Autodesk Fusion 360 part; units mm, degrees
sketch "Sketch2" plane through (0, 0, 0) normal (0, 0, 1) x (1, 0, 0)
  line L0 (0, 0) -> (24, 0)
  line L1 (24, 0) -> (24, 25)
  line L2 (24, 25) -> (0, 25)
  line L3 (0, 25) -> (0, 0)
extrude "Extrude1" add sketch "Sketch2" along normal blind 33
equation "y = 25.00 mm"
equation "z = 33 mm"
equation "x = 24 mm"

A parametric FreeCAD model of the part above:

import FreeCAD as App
import Part
import Sketcher

doc = App.newDocument("Part")
body = doc.addObject("PartDesign::Body", "Body")

# Sketch on XY plane
sketch1 = body.newObject("Sketcher::SketchObject", "Sketch")
sketch1.AttachmentSupport = (doc.getObject("XY_Plane"), [""])
sketch1.MapMode = "FlatFace"
sketch1.addGeometry(Part.LineSegment(App.Vector(0, 25, 0), App.Vector(0, 0, 0)), False)
sketch1.addGeometry(Part.LineSegment(App.Vector(0, 0, 0), App.Vector(24, 0, 0)), False)
sketch1.addGeometry(Part.LineSegment(App.Vector(24, 0, 0), App.Vector(24, 25, 0)), False)
sketch1.addGeometry(Part.LineSegment(App.Vector(24, 25, 0), App.Vector(0, 25, 0)), False)
sketch1.addConstraint(Sketcher.Constraint("Coincident", 0, 2, 1, 1))
sketch1.addConstraint(Sketcher.Constraint("Coincident", 1, 2, 2, 1))
sketch1.addConstraint(Sketcher.Constraint("Coincident", 2, 2, 3, 1))
sketch1.addConstraint(Sketcher.Constraint("Coincident", 3, 2, 0, 1))
sketch1.addConstraint(Sketcher.Constraint("Vertical", 0))
sketch1.addConstraint(Sketcher.Constraint("Horizontal", 1))
sketch1.addConstraint(Sketcher.Constraint("Vertical", 2))
sketch1.addConstraint(Sketcher.Constraint("Horizontal", 3))
sketch1.addConstraint(Sketcher.Constraint("Coincident", 0, 2, -1, 1))
sketch1.addConstraint(Sketcher.Constraint("DistanceX", 1, 1, 1, 2, 24.0))
sketch1.addConstraint(Sketcher.Constraint("DistanceY", 0, 2, 0, 1, 25.0))
pad1 = body.newObject("PartDesign::Pad", "Pad")
pad1.Profile = sketch1
pad1.Length = 33

doc.recompute()
